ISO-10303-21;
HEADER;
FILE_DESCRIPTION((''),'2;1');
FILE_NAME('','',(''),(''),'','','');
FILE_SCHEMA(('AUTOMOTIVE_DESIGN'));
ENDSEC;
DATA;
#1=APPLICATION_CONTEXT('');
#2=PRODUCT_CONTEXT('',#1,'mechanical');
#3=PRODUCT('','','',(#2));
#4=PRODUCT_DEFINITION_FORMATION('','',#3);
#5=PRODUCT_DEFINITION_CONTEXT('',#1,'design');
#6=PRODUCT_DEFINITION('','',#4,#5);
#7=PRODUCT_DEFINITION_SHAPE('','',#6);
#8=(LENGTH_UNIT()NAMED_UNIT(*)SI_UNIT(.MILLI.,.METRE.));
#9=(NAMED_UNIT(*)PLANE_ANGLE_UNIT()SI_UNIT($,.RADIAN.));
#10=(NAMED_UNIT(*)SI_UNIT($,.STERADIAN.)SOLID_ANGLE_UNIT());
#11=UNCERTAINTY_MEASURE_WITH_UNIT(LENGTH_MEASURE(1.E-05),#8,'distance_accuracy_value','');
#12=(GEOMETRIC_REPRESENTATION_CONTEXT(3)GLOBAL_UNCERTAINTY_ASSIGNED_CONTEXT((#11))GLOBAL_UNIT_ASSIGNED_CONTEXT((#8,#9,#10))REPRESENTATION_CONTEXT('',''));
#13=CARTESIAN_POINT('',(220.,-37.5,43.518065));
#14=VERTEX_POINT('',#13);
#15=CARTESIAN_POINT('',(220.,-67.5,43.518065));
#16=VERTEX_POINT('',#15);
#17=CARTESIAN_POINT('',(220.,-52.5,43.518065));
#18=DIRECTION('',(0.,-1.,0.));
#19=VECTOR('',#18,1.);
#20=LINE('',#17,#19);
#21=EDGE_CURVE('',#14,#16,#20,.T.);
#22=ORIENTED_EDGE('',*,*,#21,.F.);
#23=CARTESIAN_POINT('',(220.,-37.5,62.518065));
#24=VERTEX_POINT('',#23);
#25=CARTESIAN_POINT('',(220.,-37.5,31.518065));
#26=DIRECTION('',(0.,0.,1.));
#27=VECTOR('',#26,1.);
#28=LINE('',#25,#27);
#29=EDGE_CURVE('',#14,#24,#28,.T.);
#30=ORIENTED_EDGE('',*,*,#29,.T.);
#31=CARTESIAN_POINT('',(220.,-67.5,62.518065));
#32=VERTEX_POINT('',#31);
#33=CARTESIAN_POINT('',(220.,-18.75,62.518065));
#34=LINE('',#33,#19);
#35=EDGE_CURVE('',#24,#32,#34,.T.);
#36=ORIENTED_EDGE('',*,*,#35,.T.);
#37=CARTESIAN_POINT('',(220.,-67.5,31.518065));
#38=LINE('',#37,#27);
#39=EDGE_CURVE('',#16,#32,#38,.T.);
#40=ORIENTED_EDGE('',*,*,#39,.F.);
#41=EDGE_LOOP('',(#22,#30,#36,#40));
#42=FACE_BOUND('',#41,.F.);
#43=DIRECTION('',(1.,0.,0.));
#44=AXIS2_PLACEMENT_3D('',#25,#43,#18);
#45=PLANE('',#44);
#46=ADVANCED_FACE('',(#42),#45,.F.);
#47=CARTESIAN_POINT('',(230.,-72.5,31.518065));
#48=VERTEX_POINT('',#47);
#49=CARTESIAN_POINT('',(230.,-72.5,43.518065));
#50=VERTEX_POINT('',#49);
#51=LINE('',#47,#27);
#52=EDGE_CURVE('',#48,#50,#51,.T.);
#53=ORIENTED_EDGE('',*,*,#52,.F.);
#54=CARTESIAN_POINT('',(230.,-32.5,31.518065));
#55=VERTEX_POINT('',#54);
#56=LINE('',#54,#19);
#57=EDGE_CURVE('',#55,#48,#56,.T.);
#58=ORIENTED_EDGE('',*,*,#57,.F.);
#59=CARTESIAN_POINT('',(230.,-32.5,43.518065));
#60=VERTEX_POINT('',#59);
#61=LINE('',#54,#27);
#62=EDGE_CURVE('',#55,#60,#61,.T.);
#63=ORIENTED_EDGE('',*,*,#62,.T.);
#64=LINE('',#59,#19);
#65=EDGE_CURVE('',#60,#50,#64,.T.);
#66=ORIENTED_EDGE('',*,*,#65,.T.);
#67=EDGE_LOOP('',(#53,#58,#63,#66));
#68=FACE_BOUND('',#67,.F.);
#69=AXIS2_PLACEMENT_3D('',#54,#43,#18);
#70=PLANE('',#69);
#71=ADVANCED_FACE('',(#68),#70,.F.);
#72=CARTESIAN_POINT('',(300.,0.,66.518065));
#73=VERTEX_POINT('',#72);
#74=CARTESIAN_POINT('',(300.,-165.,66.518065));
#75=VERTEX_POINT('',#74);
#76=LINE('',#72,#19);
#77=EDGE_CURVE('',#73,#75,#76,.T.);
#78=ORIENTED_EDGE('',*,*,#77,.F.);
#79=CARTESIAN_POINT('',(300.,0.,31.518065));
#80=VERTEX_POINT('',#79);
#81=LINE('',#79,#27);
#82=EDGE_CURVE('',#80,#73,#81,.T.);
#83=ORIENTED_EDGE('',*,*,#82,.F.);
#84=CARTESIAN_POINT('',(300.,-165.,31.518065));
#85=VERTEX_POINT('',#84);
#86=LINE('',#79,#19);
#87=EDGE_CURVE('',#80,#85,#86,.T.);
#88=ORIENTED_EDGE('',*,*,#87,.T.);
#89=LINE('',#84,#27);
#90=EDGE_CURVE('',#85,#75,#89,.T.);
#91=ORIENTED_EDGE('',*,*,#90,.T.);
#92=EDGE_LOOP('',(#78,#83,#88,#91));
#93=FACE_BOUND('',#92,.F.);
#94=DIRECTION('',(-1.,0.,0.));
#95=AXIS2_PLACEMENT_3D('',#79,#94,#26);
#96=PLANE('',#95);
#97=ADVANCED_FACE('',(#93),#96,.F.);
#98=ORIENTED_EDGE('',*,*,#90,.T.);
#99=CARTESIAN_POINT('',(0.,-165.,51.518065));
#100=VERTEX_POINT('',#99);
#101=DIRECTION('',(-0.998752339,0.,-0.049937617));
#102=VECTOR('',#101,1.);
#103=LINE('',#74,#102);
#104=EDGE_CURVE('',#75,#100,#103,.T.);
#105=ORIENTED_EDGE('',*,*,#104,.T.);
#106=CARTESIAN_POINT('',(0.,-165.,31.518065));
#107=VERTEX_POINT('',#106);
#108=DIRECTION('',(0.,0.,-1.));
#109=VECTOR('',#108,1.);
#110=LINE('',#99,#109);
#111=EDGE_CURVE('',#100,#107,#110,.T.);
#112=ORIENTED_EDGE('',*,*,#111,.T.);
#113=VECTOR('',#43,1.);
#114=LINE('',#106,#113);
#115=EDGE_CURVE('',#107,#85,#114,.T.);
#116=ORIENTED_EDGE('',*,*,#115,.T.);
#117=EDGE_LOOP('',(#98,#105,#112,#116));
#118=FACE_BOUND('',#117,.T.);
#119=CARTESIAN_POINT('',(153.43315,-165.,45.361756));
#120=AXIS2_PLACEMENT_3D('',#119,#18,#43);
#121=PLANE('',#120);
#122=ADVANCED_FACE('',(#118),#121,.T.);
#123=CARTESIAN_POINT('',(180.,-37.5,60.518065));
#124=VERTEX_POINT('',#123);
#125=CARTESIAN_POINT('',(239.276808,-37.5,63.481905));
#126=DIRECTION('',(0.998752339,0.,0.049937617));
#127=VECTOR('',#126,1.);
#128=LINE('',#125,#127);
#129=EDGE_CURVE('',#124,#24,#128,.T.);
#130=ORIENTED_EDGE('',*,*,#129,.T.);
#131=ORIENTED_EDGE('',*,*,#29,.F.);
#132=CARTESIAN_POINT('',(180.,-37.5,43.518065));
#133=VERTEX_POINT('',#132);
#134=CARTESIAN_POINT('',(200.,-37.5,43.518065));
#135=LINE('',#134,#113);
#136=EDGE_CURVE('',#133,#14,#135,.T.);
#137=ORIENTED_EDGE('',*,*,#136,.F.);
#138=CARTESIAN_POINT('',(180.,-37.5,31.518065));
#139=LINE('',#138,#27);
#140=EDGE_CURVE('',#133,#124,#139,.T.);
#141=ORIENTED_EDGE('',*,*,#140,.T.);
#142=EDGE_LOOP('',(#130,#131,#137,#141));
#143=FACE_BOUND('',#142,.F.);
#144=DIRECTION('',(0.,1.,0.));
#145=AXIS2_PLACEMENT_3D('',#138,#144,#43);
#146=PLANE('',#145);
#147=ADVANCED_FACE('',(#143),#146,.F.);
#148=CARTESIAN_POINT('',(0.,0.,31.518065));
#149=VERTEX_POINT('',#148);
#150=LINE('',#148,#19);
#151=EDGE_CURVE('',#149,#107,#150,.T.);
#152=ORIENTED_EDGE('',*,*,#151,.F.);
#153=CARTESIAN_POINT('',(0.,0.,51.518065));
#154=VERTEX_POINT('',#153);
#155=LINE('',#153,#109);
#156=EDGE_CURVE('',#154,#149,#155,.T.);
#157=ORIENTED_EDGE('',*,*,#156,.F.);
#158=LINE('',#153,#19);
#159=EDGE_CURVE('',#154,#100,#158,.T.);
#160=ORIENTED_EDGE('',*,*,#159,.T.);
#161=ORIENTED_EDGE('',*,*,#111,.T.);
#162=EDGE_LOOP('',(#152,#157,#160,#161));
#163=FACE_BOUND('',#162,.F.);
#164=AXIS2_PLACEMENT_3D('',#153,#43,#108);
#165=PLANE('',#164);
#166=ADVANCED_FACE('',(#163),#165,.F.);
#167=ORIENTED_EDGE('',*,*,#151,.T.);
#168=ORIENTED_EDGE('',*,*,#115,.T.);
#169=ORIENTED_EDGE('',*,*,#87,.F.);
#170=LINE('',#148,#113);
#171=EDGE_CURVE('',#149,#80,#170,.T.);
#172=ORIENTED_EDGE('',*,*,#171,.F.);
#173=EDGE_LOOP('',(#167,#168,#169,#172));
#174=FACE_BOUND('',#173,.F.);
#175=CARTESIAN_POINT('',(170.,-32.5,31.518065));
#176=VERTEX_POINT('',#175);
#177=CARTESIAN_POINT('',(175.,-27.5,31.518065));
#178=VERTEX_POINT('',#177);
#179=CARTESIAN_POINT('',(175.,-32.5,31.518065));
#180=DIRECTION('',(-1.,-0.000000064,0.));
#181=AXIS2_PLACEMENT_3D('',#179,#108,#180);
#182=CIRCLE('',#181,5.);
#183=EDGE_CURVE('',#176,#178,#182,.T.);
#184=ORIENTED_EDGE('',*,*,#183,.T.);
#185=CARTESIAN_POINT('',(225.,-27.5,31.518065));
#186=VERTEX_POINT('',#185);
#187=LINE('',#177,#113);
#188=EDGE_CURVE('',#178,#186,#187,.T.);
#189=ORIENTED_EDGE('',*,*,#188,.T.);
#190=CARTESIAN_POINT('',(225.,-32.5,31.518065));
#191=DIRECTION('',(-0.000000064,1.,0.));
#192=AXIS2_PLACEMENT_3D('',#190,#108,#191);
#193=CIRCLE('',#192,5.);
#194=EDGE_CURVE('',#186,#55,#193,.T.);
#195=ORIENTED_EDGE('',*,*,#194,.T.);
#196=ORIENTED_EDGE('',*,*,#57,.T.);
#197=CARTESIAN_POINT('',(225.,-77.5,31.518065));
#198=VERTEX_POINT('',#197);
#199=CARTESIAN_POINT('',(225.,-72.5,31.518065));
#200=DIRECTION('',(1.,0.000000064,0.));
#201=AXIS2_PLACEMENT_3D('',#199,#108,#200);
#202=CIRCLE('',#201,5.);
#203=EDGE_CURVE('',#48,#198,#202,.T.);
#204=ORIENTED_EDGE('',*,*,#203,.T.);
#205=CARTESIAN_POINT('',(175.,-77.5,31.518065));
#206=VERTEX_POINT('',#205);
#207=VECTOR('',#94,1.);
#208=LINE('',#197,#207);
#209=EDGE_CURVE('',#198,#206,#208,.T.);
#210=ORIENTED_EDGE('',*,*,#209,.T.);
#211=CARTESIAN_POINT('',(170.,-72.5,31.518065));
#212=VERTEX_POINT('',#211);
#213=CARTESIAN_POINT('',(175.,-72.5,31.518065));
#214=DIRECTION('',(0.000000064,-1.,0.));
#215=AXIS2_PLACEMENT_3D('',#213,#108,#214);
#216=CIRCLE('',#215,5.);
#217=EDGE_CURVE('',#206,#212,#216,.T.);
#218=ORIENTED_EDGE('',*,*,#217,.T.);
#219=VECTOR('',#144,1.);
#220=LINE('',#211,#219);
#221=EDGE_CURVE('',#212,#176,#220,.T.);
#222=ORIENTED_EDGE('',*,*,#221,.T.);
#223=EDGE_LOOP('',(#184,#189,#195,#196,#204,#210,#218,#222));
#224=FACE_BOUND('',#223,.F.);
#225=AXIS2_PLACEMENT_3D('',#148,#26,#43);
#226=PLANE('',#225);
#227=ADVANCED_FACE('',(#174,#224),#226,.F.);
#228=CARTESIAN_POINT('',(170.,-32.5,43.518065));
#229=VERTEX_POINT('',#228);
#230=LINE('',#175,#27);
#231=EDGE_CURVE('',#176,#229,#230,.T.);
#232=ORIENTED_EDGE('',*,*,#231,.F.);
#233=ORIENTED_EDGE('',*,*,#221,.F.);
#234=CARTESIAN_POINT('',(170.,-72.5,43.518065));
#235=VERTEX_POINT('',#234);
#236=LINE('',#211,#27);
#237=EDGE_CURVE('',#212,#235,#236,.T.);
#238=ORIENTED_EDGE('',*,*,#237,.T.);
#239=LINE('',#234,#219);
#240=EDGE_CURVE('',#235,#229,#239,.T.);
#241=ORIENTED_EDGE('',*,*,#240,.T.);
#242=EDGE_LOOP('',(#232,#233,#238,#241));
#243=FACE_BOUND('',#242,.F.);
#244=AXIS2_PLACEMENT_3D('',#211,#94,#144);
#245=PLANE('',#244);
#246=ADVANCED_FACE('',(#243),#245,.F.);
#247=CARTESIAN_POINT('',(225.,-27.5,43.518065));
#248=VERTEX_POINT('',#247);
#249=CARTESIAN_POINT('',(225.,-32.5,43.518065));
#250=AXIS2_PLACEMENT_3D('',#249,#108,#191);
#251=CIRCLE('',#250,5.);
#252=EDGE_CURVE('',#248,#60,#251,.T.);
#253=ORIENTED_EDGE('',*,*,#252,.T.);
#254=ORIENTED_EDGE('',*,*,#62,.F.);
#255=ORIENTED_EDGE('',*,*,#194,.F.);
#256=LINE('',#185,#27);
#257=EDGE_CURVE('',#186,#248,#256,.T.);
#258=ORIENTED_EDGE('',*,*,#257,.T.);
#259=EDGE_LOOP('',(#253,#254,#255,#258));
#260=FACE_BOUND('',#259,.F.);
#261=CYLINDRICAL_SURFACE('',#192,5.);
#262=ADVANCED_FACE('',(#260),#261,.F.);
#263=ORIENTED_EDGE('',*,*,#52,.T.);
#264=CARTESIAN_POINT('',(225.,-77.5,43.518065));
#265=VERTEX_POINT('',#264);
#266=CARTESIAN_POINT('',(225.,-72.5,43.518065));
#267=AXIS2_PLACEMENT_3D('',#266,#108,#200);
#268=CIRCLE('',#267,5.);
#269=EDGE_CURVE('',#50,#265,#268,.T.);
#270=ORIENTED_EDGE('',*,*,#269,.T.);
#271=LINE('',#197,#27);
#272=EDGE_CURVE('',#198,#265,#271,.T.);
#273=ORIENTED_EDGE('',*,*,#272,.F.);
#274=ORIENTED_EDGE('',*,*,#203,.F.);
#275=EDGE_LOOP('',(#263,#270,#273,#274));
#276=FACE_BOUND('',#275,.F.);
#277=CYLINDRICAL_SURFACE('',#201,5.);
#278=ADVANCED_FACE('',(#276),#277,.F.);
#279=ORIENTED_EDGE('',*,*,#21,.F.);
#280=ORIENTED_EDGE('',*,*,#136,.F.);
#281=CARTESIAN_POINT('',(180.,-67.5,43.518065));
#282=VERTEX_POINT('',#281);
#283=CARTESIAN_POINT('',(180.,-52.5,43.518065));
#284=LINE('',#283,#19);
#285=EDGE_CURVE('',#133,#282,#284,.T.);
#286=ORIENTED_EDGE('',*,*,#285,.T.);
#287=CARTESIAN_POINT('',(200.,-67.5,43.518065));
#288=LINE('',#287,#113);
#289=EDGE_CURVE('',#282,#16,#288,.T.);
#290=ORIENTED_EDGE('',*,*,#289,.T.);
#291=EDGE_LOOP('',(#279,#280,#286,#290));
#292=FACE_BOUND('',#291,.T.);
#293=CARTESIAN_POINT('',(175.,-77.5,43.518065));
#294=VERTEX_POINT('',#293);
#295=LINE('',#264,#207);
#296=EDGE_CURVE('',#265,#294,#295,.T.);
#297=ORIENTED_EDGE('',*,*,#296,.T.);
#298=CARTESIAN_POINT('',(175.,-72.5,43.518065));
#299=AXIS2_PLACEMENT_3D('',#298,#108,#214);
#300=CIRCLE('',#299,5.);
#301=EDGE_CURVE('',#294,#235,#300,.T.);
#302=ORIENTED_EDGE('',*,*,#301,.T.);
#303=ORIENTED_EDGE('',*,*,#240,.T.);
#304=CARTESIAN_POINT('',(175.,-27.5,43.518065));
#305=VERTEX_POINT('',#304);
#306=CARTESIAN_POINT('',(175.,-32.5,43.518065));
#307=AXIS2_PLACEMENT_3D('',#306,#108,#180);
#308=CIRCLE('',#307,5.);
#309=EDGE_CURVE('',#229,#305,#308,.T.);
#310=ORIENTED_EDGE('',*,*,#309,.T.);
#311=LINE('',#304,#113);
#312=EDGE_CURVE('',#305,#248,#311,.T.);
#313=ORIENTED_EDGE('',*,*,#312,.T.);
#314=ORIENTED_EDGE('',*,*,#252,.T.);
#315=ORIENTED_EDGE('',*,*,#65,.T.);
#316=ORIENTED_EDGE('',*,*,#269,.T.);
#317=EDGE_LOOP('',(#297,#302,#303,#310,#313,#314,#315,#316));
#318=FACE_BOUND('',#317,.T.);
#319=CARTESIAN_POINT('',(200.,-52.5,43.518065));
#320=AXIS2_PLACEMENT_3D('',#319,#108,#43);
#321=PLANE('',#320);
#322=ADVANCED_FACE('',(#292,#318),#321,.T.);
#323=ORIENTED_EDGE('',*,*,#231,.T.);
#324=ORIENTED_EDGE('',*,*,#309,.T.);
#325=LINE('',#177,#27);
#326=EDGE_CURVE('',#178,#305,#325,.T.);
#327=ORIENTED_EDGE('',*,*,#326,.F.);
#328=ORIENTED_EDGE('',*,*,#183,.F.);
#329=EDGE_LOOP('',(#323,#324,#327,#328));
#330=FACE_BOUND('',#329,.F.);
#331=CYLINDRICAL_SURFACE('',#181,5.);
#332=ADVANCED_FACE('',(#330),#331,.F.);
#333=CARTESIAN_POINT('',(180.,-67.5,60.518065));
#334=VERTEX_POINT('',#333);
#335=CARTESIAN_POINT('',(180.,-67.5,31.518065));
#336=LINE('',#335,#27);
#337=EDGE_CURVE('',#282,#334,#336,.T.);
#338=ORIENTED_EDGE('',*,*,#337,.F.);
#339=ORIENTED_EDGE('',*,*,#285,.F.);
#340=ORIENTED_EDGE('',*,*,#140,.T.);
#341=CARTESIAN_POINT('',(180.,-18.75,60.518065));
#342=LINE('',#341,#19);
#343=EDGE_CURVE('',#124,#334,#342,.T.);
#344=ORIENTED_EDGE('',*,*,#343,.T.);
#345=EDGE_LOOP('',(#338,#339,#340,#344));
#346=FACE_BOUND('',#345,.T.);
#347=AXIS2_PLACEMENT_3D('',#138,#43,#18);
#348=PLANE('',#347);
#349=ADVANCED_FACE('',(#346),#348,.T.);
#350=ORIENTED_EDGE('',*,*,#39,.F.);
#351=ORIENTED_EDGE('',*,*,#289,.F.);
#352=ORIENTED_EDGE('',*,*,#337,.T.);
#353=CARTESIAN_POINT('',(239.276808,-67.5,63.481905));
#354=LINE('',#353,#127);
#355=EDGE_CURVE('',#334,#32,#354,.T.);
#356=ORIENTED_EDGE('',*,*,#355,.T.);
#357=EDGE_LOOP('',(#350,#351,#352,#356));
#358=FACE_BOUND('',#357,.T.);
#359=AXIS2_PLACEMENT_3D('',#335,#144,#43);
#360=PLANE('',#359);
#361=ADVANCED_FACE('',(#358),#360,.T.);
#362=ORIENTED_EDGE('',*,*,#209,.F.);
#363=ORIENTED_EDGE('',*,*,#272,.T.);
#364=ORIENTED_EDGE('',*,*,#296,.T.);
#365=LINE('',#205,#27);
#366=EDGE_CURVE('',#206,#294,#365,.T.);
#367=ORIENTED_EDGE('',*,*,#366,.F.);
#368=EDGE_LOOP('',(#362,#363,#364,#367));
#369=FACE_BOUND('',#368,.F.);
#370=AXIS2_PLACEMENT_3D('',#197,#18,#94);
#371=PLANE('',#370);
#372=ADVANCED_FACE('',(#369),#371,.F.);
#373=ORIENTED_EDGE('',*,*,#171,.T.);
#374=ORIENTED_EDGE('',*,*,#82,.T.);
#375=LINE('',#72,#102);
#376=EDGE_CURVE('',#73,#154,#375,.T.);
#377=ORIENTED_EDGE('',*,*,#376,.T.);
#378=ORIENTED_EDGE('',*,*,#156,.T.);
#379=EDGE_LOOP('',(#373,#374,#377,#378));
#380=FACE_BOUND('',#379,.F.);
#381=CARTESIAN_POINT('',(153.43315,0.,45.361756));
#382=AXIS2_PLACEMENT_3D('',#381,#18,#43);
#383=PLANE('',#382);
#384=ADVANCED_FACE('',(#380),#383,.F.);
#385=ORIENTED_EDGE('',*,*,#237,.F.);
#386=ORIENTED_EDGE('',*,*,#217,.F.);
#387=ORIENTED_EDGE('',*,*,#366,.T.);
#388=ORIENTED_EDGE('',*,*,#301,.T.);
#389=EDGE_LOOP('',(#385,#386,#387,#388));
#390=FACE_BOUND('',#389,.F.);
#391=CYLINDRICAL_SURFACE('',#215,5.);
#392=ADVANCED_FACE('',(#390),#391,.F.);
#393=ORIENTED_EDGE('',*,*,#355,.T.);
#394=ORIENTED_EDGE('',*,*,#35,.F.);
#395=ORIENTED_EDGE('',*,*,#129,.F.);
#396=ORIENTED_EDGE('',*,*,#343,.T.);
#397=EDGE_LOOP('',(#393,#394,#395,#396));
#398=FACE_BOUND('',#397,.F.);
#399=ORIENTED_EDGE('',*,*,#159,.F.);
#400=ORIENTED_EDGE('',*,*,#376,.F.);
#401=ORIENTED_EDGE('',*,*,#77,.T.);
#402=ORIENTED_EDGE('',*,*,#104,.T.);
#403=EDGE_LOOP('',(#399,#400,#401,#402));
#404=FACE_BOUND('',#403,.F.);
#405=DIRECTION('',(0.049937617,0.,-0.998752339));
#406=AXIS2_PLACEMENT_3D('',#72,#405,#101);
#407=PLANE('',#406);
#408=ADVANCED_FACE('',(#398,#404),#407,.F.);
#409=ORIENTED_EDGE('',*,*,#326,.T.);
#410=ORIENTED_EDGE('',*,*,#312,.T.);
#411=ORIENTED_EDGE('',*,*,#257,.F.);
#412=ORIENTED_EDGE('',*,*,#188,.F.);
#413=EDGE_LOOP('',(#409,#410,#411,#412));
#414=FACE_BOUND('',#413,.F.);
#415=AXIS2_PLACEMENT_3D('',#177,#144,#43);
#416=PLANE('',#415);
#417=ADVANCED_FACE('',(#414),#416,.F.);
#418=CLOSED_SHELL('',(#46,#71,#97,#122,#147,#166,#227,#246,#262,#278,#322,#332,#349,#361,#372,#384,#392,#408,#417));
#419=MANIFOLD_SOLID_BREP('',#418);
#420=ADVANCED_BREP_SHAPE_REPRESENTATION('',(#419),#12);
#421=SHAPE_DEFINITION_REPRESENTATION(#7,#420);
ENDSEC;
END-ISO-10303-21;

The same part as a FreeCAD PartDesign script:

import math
import FreeCAD as App
import Part
import Sketcher

V = App.Vector
Q = App.Units.Quantity


def add_polygon(sketch, points):
    """Adds a closed chain of lines whose ends are joined by coincident constraints."""
    first, n = sketch.GeometryCount, len(points)
    for a, b in zip(points, points[1:] + points[:1]):
        sketch.addGeometry(Part.LineSegment(App.Vector(*a, 0), App.Vector(*b, 0)), False)
    for i in range(n):
        sketch.addConstraint(Sketcher.Constraint("Coincident", first + i, 2, first + (i + 1) % n, 1))

doc = App.newDocument("Part")
params = doc.addObject("Spreadsheet::Sheet", "Params")
for row, (alias, value) in enumerate([
    ("sketch1_width", "300 mm"),
    ("sketch1_height", "20 mm"),
    ("sketch1_height2", "35 mm"),
    ("pad1_length", "165 mm"),
    ("sketch2_width", "40 mm"),
    ("sketch2_height", "30 mm"),
    ("sketch3_radius", "5 mm"),
    ("sketch3_width", "50 mm"),
    ("sketch3_width2", "40 mm"),
    ("sketch3_height", "30 mm"),
    ("pocket2_length", "12 mm"),
], start=1):
    params.set(f"A{row}", alias)
    params.set(f"B{row}", "=" + value)
    params.setAlias(f"B{row}", alias)

body = doc.addObject("PartDesign::Body", "Body")

sketch1 = body.newObject("Sketcher::SketchObject", "Sketch")
sketch1.AttachmentSupport = (doc.getObject("XZ_Plane"), [""])
sketch1.MapMode = "FlatFace"
add_polygon(sketch1, [(0, 51.518065), (0, 31.518065), (300, 31.518065), (300, 66.518065)])
sketch1.addConstraint([
    Sketcher.Constraint("Vertical", 0),
    Sketcher.Constraint("Horizontal", 1),
    Sketcher.Constraint("Vertical", 2),
    Sketcher.Constraint("PointOnObject", 0, 2, -2),
    Sketcher.Constraint("DistanceX", 1, 1, 1, 2, Q("300 mm")),
    Sketcher.Constraint("DistanceY", 0, 2, 0, 1, Q("20 mm")),
    Sketcher.Constraint("DistanceY", 2, 1, 2, 2, Q("35 mm")),
    Sketcher.Constraint("DistanceY", -1, 1, 0, 2, Q("31.518065 mm")),
])
sketch1.setExpression("Constraints[8]", "Params.sketch1_width")
sketch1.setExpression("Constraints[9]", "Params.sketch1_height")
sketch1.setExpression("Constraints[10]", "Params.sketch1_height2")
pad1 = body.newObject("PartDesign::Pad", "Pad")
pad1.Profile = sketch1
pad1.setExpression("Length", "Params.pad1_length")

sketch2 = body.newObject("Sketcher::SketchObject", "Sketch001")
sketch2.AttachmentSupport = (doc.getObject("XY_Plane"), [""])
sketch2.MapMode = "FlatFace"
sketch2.AttachmentOffset = App.Placement(V(0, 0, 31.518065), App.Rotation())
add_polygon(sketch2, [(180, -67.5), (180, -37.5), (220, -37.5), (220, -67.5)])
sketch2.addConstraint([
    Sketcher.Constraint("Vertical", 0),
    Sketcher.Constraint("Horizontal", 1),
    Sketcher.Constraint("Vertical", 2),
    Sketcher.Constraint("Horizontal", 3),
    Sketcher.Constraint("DistanceX", 1, 1, 1, 2, Q("40 mm")),
    Sketcher.Constraint("DistanceY", 0, 1, 0, 2, Q("30 mm")),
    Sketcher.Constraint("DistanceX", -1, 1, 0, 2, Q("180 mm")),
    Sketcher.Constraint("DistanceY", 0, 2, -1, 1, Q("37.5 mm")),
])
sketch2.setExpression("Constraints[8]", "Params.sketch2_width")
sketch2.setExpression("Constraints[9]", "Params.sketch2_height")
pocket1 = body.newObject("PartDesign::Pocket", "Pocket")
pocket1.Profile = sketch2
pocket1.Type = "ThroughAll"
pocket1.Reversed = True

sketch3 = body.newObject("Sketcher::SketchObject", "Sketch002")
sketch3.AttachmentSupport = (doc.getObject("XY_Plane"), [""])
sketch3.MapMode = "FlatFace"
sketch3.AttachmentOffset = App.Placement(V(0, 0, 31.518065), App.Rotation())
sketch3.addGeometry(Part.LineSegment(V(170, -72.5, 0), V(170, -32.5, 0)), False)
sketch3.addGeometry(Part.ArcOfCircle(Part.Circle(V(175, -32.5, 0), V(0, 0, 1), 5), math.radians(89.999996), math.radians(180.000004)), False)
sketch3.addGeometry(Part.LineSegment(V(175, -27.5, 0), V(225, -27.5, 0)), False)
sketch3.addGeometry(Part.ArcOfCircle(Part.Circle(V(225, -32.5, 0), V(0, 0, 1), 5), math.radians(-0.000004), math.radians(90.000004)), False)
sketch3.addGeometry(Part.LineSegment(V(230, -32.5, 0), V(230, -72.5, 0)), False)
sketch3.addGeometry(Part.ArcOfCircle(Part.Circle(V(225, -72.5, 0), V(0, 0, 1), 5), math.radians(-90.000004), math.radians(0.000004)), False)
sketch3.addGeometry(Part.LineSegment(V(225, -77.5, 0), V(175, -77.5, 0)), False)
sketch3.addGeometry(Part.ArcOfCircle(Part.Circle(V(175, -72.5, 0), V(0, 0, 1), 5), math.radians(179.999996), math.radians(270.000004)), False)
add_polygon(sketch3, [(220, -37.5), (180, -37.5), (180, -67.5), (220, -67.5)])
sketch3.addConstraint([
    Sketcher.Constraint("Tangent", 0, 2, 1, 2),
    Sketcher.Constraint("Tangent", 1, 1, 2, 1),
    Sketcher.Constraint("Tangent", 2, 2, 3, 2),
    Sketcher.Constraint("Tangent", 3, 1, 4, 1),
    Sketcher.Constraint("Tangent", 4, 2, 5, 2),
    Sketcher.Constraint("Tangent", 5, 1, 6, 1),
    Sketcher.Constraint("Tangent", 6, 2, 7, 2),
    Sketcher.Constraint("Tangent", 7, 1, 0, 1),
    Sketcher.Constraint("Vertical", 0),
    Sketcher.Constraint("Horizontal", 2),
    Sketcher.Constraint("Vertical", 4),
    Sketcher.Constraint("Horizontal", 6),
    Sketcher.Constraint("Horizontal", 8),
    Sketcher.Constraint("Vertical", 9),
    Sketcher.Constraint("Horizontal", 10),
    Sketcher.Constraint("Vertical", 11),
    Sketcher.Constraint("Equal", 1, 3),
    Sketcher.Constraint("Equal", 3, 5),
    Sketcher.Constraint("Equal", 5, 7),
    Sketcher.Constraint("Equal", 10, 0),
    Sketcher.Constraint("Radius", 1, Q("5 mm")),
    Sketcher.Constraint("DistanceX", 2, 1, 2, 2, Q("50 mm")),
    Sketcher.Constraint("DistanceX", 8, 2, 8, 1, Q("40 mm")),
    Sketcher.Constraint("DistanceY", 9, 2, 9, 1, Q("30 mm")),
    Sketcher.Constraint("DistanceX", -1, 1, 1, 3, Q("175 mm")),
    Sketcher.Constraint("DistanceX", -1, 1, 8, 2, Q("180 mm")),
    Sketcher.Constraint("DistanceY", 8, 2, 1, 3, Q("5 mm")),
    Sketcher.Constraint("DistanceY", 1, 3, -1, 1, Q("32.5 mm")),
])
sketch3.setExpression("Constraints[24]", "Params.sketch3_radius")
sketch3.setExpression("Constraints[25]", "Params.sketch3_width")
sketch3.setExpression("Constraints[26]", "Params.sketch3_width2")
sketch3.setExpression("Constraints[27]", "Params.sketch3_height")
pocket2 = body.newObject("PartDesign::Pocket", "Pocket001")
pocket2.Profile = sketch3
pocket2.setExpression("Length", "Params.pocket2_length")
pocket2.Reversed = True

doc.recompute()
